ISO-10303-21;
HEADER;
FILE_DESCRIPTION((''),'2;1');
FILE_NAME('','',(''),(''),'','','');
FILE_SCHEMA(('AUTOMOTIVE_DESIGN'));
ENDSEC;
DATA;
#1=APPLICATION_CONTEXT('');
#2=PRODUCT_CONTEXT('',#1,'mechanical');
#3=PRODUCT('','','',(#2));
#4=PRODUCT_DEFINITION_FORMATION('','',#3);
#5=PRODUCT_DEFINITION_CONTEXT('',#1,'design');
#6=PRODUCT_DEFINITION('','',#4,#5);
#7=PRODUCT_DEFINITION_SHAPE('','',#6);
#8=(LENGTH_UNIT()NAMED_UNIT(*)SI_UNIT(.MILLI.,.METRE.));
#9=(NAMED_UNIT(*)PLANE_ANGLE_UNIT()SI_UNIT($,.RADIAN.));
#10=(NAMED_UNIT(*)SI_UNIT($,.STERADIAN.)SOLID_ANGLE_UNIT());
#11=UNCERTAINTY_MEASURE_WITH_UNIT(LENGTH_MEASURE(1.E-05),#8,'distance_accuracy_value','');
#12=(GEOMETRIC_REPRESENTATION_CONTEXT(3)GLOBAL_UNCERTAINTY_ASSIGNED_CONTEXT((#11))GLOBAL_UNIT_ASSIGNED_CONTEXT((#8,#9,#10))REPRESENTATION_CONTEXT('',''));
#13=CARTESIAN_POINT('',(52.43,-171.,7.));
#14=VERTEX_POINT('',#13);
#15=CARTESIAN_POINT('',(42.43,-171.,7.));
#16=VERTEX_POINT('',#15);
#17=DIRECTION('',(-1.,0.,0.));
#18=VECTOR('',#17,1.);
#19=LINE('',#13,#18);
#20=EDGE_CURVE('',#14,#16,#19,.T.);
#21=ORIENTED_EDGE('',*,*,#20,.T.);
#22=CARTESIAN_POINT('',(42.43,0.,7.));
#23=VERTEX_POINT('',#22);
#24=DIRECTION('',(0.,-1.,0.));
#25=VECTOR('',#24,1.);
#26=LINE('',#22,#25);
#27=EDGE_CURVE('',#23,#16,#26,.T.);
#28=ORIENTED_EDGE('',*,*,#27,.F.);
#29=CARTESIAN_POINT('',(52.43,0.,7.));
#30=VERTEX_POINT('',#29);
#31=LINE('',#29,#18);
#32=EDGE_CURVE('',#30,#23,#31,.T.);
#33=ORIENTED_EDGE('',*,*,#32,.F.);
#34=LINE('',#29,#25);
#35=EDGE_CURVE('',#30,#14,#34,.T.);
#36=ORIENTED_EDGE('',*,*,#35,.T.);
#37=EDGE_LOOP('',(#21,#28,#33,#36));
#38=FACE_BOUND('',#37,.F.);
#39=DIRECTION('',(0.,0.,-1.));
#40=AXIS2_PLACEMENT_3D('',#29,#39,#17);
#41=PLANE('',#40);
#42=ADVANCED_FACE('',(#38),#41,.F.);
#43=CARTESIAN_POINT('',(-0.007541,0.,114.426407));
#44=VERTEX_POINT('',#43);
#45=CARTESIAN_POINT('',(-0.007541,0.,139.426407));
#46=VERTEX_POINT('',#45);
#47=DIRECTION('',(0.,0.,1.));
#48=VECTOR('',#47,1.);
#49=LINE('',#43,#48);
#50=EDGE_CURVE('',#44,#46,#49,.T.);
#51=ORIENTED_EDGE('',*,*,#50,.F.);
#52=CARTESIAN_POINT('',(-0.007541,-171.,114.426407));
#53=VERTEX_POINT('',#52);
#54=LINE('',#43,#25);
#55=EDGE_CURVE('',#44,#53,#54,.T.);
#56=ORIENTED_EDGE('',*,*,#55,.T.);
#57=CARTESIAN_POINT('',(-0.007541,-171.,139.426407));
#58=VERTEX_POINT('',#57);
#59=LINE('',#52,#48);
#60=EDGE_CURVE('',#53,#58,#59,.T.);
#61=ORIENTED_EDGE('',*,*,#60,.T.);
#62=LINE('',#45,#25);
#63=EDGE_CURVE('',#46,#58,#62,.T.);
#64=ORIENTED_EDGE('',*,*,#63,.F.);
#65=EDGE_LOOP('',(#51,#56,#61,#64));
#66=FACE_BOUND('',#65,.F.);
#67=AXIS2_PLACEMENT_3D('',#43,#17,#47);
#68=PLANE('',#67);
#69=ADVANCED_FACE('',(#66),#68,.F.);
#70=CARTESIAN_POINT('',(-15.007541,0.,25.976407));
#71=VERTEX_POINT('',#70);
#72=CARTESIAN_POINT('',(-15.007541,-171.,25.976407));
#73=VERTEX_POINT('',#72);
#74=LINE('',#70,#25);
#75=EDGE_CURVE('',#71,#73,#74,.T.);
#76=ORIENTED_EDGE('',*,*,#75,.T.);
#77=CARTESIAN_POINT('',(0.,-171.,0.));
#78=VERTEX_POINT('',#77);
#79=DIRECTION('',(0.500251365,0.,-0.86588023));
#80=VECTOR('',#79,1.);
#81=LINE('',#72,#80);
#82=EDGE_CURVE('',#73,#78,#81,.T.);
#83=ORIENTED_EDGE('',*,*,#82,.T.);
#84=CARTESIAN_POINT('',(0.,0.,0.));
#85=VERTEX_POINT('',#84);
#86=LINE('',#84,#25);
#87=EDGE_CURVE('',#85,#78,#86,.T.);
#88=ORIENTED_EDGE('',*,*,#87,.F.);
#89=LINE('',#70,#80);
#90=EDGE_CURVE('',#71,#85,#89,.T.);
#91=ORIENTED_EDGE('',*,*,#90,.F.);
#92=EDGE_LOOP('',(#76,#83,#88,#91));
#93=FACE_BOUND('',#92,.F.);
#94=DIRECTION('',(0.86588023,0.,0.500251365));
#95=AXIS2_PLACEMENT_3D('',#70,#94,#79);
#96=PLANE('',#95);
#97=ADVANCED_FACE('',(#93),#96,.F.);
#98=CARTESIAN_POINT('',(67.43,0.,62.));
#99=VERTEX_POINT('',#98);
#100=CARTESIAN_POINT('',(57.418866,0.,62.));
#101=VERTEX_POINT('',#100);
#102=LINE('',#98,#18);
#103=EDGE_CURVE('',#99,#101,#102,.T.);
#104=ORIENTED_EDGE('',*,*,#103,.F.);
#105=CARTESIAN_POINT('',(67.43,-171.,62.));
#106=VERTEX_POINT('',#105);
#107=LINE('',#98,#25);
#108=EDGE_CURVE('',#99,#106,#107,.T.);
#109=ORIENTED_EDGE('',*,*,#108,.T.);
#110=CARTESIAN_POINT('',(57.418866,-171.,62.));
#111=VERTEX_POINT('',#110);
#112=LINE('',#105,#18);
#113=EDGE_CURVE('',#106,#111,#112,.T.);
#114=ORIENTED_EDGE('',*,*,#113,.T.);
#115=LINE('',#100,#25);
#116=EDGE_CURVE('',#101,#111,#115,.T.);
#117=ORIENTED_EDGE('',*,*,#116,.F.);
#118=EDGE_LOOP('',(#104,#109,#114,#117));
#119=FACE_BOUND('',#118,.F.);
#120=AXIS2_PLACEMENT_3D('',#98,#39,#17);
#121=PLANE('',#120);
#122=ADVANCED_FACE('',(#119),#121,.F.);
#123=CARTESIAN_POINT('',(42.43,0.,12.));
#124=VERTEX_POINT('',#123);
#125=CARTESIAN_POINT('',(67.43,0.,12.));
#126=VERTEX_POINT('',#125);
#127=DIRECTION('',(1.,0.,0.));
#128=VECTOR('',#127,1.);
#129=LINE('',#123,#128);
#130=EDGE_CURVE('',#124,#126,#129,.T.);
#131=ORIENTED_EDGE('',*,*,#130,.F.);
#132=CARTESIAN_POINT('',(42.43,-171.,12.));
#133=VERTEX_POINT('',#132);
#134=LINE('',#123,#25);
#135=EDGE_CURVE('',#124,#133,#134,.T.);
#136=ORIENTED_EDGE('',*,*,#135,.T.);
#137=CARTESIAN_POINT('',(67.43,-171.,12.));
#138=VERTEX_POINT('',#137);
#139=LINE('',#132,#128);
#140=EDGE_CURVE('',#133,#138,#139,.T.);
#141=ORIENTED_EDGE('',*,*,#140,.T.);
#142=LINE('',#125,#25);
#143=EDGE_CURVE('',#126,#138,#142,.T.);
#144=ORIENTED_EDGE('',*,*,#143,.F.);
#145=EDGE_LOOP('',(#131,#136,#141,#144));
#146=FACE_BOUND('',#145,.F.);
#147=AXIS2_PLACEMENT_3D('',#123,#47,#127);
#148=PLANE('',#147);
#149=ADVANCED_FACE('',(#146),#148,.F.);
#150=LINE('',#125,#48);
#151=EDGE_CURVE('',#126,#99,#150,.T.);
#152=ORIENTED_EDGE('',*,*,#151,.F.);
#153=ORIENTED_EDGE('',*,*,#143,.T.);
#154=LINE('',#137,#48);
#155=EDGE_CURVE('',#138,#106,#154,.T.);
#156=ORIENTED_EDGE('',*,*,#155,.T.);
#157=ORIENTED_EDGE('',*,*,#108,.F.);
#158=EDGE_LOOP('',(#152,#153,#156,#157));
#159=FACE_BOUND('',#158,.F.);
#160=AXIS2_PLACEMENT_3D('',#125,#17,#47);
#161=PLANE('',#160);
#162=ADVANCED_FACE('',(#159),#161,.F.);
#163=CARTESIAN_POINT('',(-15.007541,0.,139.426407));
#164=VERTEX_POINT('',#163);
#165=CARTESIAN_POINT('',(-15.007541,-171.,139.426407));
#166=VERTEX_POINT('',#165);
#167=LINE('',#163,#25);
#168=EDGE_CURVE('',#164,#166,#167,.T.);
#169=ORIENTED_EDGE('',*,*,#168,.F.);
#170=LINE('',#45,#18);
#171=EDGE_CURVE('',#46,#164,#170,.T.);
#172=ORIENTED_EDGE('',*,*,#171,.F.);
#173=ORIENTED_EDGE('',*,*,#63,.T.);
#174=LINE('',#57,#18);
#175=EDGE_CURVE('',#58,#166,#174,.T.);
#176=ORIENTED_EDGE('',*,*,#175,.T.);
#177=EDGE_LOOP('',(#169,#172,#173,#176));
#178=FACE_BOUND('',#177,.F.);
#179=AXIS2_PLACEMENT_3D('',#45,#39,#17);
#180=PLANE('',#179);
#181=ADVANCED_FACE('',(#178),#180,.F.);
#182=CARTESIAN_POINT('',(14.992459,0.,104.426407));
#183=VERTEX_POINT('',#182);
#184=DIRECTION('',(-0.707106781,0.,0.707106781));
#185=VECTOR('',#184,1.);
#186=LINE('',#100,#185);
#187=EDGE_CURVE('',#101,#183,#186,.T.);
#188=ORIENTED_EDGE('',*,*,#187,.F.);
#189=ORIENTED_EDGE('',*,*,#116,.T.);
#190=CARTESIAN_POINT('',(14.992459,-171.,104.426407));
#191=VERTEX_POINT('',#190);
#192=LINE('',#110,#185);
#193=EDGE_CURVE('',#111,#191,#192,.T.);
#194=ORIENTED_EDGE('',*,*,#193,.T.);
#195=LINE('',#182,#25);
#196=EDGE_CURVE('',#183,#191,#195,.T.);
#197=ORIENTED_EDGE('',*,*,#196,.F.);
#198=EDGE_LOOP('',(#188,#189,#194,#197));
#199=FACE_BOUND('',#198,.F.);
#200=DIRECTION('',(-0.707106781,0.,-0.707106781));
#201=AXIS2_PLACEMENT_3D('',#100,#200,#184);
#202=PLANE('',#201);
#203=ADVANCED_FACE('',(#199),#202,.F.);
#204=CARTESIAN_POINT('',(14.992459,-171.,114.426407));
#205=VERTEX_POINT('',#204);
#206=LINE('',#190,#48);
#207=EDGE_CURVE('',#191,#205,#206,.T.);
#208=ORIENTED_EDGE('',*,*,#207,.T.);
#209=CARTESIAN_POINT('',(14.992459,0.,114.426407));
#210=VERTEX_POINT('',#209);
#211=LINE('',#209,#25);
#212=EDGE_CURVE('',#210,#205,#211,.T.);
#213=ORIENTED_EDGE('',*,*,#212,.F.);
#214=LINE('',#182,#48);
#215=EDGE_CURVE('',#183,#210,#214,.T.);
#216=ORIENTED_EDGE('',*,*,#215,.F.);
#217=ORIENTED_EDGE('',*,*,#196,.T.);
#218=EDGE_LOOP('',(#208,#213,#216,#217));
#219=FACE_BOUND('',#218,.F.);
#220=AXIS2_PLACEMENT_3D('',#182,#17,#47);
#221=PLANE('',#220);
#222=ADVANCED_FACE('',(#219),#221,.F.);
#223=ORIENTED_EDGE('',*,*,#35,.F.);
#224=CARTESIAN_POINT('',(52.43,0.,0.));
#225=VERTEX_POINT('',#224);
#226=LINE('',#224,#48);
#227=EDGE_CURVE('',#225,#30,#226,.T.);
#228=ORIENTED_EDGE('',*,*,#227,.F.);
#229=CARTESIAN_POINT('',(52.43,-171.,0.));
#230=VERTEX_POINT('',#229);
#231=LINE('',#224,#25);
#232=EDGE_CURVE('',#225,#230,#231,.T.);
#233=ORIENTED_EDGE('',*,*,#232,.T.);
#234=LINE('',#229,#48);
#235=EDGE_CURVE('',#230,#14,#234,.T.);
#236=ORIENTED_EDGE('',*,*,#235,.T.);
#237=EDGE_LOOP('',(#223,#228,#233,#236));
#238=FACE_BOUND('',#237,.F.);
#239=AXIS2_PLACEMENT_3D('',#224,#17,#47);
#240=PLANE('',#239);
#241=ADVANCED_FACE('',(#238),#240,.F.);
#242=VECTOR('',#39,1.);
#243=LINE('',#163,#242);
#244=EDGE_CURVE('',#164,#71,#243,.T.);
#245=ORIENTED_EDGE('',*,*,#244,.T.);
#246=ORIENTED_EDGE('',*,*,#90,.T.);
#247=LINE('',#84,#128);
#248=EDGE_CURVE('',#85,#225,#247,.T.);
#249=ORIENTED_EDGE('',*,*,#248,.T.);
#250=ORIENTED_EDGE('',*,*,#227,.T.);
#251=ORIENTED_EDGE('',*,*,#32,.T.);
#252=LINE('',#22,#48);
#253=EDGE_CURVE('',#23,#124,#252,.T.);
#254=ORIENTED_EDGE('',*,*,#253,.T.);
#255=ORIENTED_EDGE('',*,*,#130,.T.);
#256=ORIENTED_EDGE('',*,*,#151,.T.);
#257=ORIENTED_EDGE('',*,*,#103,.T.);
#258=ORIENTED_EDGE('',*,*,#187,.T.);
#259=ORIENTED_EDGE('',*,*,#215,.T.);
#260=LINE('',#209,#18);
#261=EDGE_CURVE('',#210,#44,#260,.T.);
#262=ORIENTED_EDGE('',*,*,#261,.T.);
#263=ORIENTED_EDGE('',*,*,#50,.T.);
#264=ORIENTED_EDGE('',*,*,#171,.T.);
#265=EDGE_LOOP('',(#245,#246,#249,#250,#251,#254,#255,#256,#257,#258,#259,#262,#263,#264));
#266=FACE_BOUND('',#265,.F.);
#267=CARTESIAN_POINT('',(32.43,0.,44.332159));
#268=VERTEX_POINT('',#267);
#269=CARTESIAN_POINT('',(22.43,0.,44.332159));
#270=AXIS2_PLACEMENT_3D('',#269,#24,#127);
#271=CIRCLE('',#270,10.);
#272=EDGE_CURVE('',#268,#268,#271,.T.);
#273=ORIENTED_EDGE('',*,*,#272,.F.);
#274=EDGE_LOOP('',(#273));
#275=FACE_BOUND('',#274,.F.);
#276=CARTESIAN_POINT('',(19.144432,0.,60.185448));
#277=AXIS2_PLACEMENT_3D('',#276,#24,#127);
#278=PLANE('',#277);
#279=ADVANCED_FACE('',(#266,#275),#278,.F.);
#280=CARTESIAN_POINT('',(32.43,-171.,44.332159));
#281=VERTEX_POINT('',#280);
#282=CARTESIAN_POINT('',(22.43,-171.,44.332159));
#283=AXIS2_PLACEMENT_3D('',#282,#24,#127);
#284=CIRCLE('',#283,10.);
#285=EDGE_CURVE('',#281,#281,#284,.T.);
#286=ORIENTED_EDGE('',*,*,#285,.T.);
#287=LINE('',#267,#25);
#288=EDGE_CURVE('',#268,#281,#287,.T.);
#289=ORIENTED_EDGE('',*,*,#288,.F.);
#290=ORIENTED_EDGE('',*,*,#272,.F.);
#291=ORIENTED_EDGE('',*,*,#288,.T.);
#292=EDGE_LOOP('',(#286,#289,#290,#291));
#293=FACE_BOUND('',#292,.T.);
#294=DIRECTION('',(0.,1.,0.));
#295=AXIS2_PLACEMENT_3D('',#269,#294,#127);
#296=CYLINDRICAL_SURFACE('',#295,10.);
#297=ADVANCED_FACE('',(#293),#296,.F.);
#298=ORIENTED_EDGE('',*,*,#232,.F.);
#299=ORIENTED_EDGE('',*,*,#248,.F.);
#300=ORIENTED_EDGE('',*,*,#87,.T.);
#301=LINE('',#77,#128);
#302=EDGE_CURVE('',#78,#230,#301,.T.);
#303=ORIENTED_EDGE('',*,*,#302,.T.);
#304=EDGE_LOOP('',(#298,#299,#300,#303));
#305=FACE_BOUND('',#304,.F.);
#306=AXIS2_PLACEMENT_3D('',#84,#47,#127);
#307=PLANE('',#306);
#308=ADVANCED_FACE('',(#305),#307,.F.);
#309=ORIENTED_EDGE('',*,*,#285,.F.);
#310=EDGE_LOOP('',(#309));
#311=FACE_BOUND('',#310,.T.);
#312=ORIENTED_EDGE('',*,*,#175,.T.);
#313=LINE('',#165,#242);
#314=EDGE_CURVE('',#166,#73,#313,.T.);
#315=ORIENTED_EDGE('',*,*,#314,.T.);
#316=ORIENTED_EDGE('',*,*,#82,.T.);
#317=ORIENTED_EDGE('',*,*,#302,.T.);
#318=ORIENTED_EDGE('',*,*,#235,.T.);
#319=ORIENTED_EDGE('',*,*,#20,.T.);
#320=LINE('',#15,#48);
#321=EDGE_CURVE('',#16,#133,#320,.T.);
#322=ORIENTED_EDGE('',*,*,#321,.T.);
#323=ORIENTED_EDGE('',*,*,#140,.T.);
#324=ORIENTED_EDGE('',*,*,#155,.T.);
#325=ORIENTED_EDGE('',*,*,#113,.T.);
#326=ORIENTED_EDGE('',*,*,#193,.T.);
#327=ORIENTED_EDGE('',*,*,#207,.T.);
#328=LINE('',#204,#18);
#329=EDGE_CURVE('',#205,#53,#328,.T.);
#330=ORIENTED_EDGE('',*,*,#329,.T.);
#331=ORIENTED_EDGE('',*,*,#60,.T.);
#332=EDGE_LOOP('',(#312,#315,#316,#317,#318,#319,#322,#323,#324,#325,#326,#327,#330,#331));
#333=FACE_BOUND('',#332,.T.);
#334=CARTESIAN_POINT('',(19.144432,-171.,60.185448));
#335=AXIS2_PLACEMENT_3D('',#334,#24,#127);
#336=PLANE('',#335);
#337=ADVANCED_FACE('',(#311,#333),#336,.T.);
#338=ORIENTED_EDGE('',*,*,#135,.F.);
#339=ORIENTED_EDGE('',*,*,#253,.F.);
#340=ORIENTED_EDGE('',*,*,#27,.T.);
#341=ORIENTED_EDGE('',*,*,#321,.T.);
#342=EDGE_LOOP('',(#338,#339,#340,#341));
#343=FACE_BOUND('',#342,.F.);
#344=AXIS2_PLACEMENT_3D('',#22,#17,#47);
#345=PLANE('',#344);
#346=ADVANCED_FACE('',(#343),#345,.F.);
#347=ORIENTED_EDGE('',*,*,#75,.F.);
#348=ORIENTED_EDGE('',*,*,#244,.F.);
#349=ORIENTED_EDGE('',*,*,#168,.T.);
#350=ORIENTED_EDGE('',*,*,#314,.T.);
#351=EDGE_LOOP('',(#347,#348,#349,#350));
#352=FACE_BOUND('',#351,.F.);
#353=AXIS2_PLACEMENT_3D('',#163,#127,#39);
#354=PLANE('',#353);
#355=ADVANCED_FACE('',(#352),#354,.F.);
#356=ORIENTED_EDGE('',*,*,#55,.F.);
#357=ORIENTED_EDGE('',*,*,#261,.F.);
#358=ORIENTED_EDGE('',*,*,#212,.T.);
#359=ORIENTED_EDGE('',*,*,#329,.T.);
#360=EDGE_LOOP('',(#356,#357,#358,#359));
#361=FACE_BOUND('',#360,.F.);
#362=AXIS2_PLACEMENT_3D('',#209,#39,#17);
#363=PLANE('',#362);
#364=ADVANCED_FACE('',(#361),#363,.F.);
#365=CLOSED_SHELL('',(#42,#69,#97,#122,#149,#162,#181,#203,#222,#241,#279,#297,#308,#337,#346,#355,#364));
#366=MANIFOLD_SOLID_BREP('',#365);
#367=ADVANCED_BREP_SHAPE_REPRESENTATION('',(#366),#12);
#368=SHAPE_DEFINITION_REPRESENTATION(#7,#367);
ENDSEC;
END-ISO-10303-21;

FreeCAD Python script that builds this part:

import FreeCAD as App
import Part
import Sketcher
Q = App.Units.Quantity

doc = App.newDocument("Part")
body = doc.addObject("PartDesign::Body", "Body")

sketch1 = body.newObject("Sketcher::SketchObject", "Sketch")
sketch1.AttachmentSupport = (doc.getObject("XZ_Plane"), [""])
sketch1.MapMode = "FlatFace"
sketch1.addGeometry(Part.LineSegment(App.Vector(0, 139, 0), App.Vector(-15, 139, 0)), False)
sketch1.addGeometry(Part.LineSegment(App.Vector(-15, 139, 0), App.Vector(-15, 26, 0)), False)
sketch1.addGeometry(Part.LineSegment(App.Vector(-15, 26, 0), App.Vector(0, 0, 0)), False)
sketch1.addGeometry(Part.LineSegment(App.Vector(0, 0, 0), App.Vector(52, 0, 0)), False)
sketch1.addGeometry(Part.LineSegment(App.Vector(52, 0, 0), App.Vector(52, 7, 0)), False)
sketch1.addGeometry(Part.LineSegment(App.Vector(52, 7, 0), App.Vector(42, 7, 0)), False)
sketch1.addGeometry(Part.LineSegment(App.Vector(42, 7, 0), App.Vector(42, 12, 0)), False)
sketch1.addGeometry(Part.LineSegment(App.Vector(42, 12, 0), App.Vector(67, 12, 0)), False)
sketch1.addGeometry(Part.LineSegment(App.Vector(67, 12, 0), App.Vector(67, 62, 0)), False)
sketch1.addGeometry(Part.LineSegment(App.Vector(67, 62, 0), App.Vector(57, 62, 0)), False)
sketch1.addGeometry(Part.LineSegment(App.Vector(57, 62, 0), App.Vector(15, 104, 0)), False)
sketch1.addGeometry(Part.LineSegment(App.Vector(15, 104, 0), App.Vector(15, 114, 0)), False)
sketch1.addGeometry(Part.LineSegment(App.Vector(15, 114, 0), App.Vector(0, 114, 0)), False)
sketch1.addGeometry(Part.LineSegment(App.Vector(0, 114, 0), App.Vector(0, 139, 0)), False)
sketch1.addGeometry(Part.Circle(App.Vector(22, 44, 0), App.Vector(0, 0, 1), 10), False)
sketch1.addConstraint(Sketcher.Constraint("Coincident", 0, 2, 1, 1))
sketch1.addConstraint(Sketcher.Constraint("Coincident", 1, 2, 2, 1))
sketch1.addConstraint(Sketcher.Constraint("Coincident", 2, 2, 3, 1))
sketch1.addConstraint(Sketcher.Constraint("Coincident", 3, 2, 4, 1))
sketch1.addConstraint(Sketcher.Constraint("Coincident", 4, 2, 5, 1))
sketch1.addConstraint(Sketcher.Constraint("Coincident", 5, 2, 6, 1))
sketch1.addConstraint(Sketcher.Constraint("Coincident", 6, 2, 7, 1))
sketch1.addConstraint(Sketcher.Constraint("Coincident", 7, 2, 8, 1))
sketch1.addConstraint(Sketcher.Constraint("Coincident", 8, 2, 9, 1))
sketch1.addConstraint(Sketcher.Constraint("Coincident", 9, 2, 10, 1))
sketch1.addConstraint(Sketcher.Constraint("Coincident", 10, 2, 11, 1))
sketch1.addConstraint(Sketcher.Constraint("Coincident", 11, 2, 12, 1))
sketch1.addConstraint(Sketcher.Constraint("Coincident", 12, 2, 13, 1))
sketch1.addConstraint(Sketcher.Constraint("Coincident", 13, 2, 0, 1))
sketch1.addConstraint(Sketcher.Constraint("Horizontal", 0))
sketch1.addConstraint(Sketcher.Constraint("Vertical", 1))
sketch1.addConstraint(Sketcher.Constraint("Horizontal", 3))
sketch1.addConstraint(Sketcher.Constraint("Vertical", 4))
sketch1.addConstraint(Sketcher.Constraint("Horizontal", 5))
sketch1.addConstraint(Sketcher.Constraint("Vertical", 6))
sketch1.addConstraint(Sketcher.Constraint("Horizontal", 7))
sketch1.addConstraint(Sketcher.Constraint("Vertical", 8))
sketch1.addConstraint(Sketcher.Constraint("Horizontal", 9))
sketch1.addConstraint(Sketcher.Constraint("Vertical", 11))
sketch1.addConstraint(Sketcher.Constraint("Horizontal", 12))
sketch1.addConstraint(Sketcher.Constraint("Vertical", 13))
sketch1.addConstraint(Sketcher.Constraint("Coincident", 2, 2, -1, 1))
sketch1.addConstraint(Sketcher.Constraint("Equal", 0, 12))
sketch1.addConstraint(Sketcher.Constraint("Equal", 5, 11))
sketch1.addConstraint(Sketcher.Constraint("Equal", 7, 13))
sketch1.addConstraint(Sketcher.Constraint("Diameter", 14, 20.0))
sketch1.addConstraint(Sketcher.Constraint("DistanceX", 0, 2, 0, 1, 15.0))
sketch1.addConstraint(Sketcher.Constraint("DistanceX", 5, 2, 5, 1, 10.0))
sketch1.addConstraint(Sketcher.Constraint("DistanceX", 7, 1, 7, 2, 25.0))
sketch1.addConstraint(Sketcher.Constraint("DistanceY", 4, 1, 4, 2, 7.0))
sketch1.addConstraint(Sketcher.Constraint("DistanceY", 6, 1, 6, 2, 5.0))
sketch1.addConstraint(Sketcher.Constraint("DistanceY", 8, 1, 8, 2, 50.0))
sketch1.addConstraint(Sketcher.Constraint("Angle", 10, Q("135 deg")))
sketch1.addConstraint(Sketcher.Constraint("Distance", 2, 30.0))
sketch1.addConstraint(Sketcher.Constraint("Distance", 10, 60.0))
sketch1.addConstraint(Sketcher.Constraint("DistanceX", 14, 3, 3, 2, 30.0))
sketch1.addConstraint(Sketcher.Constraint("DistanceX", 3, 1, 3, 2, 52.43))
sketch1.addConstraint(Sketcher.Constraint("DistanceY", 1, 2, 1, 1, 113.45))
sketch1.addConstraint(Sketcher.Constraint("DistanceY", -1, 1, 14, 3, 44.332159))
pad1 = body.newObject("PartDesign::Pad", "Pad")
pad1.Profile = sketch1
pad1.Length = 171

doc.recompute()
